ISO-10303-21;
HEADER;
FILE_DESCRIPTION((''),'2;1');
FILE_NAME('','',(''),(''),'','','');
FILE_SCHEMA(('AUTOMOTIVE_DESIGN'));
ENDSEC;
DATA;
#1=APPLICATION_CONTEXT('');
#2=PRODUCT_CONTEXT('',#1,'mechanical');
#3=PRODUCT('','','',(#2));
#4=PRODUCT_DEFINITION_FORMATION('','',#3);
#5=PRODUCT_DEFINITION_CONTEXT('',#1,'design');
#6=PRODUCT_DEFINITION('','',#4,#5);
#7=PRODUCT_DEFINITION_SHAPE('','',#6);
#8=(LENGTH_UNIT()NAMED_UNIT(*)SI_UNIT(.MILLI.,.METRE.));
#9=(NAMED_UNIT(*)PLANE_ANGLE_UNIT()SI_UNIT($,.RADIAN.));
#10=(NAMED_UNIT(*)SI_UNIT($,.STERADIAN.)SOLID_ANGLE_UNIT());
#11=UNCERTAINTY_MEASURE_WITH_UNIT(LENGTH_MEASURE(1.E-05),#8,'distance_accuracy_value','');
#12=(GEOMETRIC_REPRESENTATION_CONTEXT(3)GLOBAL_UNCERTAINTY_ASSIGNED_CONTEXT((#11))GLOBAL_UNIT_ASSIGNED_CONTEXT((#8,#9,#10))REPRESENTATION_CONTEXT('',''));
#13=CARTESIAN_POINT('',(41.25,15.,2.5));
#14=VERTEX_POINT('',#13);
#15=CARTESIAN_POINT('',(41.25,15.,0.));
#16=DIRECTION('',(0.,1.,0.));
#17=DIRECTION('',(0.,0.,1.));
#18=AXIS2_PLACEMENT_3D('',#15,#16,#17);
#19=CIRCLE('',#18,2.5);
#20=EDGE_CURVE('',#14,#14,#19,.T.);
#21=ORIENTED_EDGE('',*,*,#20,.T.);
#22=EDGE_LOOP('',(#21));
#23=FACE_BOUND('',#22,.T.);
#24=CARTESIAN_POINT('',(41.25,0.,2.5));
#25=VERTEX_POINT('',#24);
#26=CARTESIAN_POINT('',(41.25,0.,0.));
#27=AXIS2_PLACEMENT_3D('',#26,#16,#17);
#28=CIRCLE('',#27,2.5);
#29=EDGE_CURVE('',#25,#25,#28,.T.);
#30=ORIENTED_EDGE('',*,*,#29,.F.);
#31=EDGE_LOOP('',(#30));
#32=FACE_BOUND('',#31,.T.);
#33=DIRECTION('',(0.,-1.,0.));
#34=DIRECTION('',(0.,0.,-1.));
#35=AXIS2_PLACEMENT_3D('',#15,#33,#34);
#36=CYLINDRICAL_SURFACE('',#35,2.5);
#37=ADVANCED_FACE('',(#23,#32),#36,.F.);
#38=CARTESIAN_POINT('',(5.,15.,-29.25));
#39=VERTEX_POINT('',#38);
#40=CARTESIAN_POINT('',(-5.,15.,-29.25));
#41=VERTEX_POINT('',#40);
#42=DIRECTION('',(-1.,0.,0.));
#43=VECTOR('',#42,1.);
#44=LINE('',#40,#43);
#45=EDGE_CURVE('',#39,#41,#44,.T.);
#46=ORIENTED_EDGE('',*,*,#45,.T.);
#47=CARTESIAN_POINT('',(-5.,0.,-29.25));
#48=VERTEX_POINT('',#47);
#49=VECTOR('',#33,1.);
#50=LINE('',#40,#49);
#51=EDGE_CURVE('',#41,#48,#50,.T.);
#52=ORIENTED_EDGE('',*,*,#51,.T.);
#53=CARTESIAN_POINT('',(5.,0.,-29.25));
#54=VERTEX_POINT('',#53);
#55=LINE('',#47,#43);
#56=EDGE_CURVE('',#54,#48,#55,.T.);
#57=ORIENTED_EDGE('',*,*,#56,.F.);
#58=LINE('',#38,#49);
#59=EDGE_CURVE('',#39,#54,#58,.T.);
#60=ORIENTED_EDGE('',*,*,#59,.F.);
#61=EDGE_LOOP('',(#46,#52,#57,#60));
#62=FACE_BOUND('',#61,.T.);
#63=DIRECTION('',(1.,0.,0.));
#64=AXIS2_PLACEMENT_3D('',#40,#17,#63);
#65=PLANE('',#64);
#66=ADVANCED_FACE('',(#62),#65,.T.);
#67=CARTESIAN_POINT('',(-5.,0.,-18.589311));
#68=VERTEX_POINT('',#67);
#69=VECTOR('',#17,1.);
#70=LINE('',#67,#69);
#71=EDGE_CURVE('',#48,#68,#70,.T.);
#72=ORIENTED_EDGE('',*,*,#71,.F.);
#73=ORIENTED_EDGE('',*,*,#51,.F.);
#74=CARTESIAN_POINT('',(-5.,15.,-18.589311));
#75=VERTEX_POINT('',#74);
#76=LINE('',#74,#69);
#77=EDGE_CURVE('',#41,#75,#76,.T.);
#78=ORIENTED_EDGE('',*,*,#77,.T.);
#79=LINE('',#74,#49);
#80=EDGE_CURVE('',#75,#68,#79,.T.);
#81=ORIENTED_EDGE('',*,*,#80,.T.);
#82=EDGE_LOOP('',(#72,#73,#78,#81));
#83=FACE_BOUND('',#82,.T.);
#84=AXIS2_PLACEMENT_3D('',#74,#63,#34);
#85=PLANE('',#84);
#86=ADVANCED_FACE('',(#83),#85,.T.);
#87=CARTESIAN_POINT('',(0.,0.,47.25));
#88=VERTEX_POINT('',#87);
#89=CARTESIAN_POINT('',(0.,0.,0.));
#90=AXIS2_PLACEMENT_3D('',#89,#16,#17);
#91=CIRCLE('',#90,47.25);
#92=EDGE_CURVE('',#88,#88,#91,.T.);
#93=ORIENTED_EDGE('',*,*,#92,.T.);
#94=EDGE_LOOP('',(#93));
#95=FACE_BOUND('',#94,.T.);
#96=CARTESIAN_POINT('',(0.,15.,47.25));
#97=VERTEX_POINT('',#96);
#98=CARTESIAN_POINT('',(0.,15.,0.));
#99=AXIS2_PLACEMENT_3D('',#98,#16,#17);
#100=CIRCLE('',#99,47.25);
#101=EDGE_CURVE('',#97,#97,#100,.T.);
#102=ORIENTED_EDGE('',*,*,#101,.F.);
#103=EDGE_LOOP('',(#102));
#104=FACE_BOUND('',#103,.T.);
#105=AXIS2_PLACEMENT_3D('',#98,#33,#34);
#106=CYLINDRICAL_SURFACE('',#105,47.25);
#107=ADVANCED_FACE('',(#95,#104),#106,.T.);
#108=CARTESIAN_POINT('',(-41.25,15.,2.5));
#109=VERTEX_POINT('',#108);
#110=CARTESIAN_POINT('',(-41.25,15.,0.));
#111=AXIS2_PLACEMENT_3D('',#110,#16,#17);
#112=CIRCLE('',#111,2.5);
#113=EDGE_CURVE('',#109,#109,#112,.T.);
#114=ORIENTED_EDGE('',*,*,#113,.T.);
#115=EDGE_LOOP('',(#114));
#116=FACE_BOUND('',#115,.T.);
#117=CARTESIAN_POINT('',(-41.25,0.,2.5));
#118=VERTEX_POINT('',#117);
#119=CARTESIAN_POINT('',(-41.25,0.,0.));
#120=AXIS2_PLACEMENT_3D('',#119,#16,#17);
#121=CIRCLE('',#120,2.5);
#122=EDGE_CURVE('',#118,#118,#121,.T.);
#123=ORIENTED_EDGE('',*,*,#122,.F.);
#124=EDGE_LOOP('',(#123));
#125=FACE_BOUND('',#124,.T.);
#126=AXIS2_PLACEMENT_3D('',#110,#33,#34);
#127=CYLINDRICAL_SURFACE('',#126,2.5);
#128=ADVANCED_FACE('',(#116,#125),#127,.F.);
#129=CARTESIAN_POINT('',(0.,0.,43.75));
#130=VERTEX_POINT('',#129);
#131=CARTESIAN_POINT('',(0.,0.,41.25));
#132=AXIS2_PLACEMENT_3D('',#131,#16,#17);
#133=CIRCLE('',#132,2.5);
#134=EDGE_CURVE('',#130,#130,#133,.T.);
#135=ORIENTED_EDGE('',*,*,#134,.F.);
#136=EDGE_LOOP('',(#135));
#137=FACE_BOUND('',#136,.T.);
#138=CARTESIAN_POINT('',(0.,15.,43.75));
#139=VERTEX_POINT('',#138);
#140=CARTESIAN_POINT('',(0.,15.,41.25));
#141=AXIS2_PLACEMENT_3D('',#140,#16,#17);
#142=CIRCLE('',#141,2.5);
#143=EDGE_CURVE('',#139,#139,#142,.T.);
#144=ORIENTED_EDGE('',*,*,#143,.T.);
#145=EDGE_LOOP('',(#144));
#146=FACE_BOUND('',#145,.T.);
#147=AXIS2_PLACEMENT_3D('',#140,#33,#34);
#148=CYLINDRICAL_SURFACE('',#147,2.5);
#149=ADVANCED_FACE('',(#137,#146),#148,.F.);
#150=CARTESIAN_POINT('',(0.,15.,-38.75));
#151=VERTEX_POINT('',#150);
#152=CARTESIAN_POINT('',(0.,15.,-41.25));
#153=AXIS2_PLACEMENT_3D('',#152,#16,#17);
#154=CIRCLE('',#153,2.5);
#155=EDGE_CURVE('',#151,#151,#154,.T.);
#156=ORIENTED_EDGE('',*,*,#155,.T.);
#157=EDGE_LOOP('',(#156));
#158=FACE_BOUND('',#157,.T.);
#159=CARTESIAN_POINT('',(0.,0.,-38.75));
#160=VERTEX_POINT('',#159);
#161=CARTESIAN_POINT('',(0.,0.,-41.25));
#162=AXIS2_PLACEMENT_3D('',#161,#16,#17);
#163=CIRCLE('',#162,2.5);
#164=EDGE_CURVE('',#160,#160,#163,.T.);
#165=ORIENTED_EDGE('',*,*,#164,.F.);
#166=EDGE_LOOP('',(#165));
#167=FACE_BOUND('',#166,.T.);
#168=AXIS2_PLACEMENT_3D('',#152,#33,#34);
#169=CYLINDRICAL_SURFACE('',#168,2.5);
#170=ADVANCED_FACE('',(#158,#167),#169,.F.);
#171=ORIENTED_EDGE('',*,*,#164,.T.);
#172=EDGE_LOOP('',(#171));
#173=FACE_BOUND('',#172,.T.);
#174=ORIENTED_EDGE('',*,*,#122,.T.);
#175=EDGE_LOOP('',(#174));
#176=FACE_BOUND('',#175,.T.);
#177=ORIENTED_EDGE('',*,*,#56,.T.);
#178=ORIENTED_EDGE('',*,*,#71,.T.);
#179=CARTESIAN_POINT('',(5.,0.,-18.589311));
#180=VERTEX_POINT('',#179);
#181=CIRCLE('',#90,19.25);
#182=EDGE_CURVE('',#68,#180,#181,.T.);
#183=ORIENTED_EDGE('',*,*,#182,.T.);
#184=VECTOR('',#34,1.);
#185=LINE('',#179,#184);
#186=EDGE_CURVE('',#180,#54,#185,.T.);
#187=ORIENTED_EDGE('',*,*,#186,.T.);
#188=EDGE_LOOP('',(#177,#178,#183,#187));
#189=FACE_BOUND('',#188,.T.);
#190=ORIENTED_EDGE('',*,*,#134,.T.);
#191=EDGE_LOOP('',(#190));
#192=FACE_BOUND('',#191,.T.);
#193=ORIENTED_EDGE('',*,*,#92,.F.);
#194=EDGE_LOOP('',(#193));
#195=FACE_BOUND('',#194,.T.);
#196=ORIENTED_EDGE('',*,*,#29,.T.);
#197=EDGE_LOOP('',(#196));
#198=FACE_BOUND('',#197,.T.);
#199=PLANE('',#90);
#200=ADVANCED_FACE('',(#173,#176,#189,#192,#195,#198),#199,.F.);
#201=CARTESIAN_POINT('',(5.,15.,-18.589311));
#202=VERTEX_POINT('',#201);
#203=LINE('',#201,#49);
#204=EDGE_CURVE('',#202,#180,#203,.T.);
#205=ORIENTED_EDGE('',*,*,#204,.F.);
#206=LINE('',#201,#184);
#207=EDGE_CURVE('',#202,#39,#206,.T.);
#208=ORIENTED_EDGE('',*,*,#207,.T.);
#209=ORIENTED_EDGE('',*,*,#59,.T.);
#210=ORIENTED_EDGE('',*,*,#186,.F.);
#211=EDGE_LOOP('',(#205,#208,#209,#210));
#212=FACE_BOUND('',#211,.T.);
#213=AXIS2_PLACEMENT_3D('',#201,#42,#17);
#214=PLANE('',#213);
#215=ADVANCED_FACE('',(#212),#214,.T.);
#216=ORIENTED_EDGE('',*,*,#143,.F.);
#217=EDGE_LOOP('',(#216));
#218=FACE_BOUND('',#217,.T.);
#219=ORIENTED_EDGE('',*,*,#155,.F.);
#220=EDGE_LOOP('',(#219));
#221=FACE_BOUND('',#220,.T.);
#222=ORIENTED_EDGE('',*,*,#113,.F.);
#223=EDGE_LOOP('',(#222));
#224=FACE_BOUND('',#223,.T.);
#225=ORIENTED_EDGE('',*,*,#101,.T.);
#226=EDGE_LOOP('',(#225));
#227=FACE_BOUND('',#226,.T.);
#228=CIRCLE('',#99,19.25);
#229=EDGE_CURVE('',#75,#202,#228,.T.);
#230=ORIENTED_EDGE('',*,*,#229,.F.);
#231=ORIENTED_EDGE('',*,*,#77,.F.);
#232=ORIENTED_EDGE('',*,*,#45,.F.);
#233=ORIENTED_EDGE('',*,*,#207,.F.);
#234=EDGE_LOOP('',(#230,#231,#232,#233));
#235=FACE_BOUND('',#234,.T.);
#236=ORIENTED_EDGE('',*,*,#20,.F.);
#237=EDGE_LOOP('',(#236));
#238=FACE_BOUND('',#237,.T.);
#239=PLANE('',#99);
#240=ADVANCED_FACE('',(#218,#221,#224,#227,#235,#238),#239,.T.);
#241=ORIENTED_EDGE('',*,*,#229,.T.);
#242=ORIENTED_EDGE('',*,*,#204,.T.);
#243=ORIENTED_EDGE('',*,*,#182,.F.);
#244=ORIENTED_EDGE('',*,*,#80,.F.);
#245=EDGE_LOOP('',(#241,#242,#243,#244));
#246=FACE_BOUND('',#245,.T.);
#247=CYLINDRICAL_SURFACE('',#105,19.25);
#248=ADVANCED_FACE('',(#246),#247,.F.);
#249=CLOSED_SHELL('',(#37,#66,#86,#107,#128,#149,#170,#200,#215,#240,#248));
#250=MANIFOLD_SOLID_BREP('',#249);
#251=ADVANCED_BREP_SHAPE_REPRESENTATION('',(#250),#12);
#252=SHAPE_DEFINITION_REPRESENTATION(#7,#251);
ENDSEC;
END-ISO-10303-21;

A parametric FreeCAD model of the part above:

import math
import FreeCAD as App
import Part
import Sketcher
Q = App.Units.Quantity

doc = App.newDocument("Part")
body = doc.addObject("PartDesign::Body", "Body")

sketch1 = body.newObject("Sketcher::SketchObject", "Sketch")
sketch1.AttachmentSupport = (doc.getObject("XZ_Plane"), [""])
sketch1.MapMode = "FlatFace"
sketch1.addGeometry([
    Part.Circle(App.Vector(0, 0, 0), App.Vector(0, 0, 1), 47.2),
    Part.Circle(App.Vector(0, 41.2, 0), App.Vector(0, 0, 1), 2.5),
    Part.Circle(App.Vector(-41.2, 0, 0), App.Vector(0, 0, 1), 2.5),
    Part.ArcOfCircle(Part.Circle(App.Vector(0, 0, 0), App.Vector(0, 0, 1), 19.2), math.radians(-75), math.radians(255)),
    Part.LineSegment(App.Vector(-5, -18.6, 0), App.Vector(-5, -29.2, 0)),
    Part.LineSegment(App.Vector(-5, -29.2, 0), App.Vector(5, -29.2, 0)),
    Part.LineSegment(App.Vector(5, -29.2, 0), App.Vector(5, -18.6, 0)),
    Part.Circle(App.Vector(41.2, 0, 0), App.Vector(0, 0, 1), 2.5),
    Part.Circle(App.Vector(0, -41.2, 0), App.Vector(0, 0, 1), 2.5),
], False)
sketch1.addConstraint([
    Sketcher.Constraint("Coincident", 3, 2, 4, 1),
    Sketcher.Constraint("Coincident", 4, 2, 5, 1),
    Sketcher.Constraint("Coincident", 5, 2, 6, 1),
    Sketcher.Constraint("Coincident", 6, 2, 3, 1),
    Sketcher.Constraint("Vertical", 4),
    Sketcher.Constraint("Horizontal", 5),
    Sketcher.Constraint("Vertical", 6),
    Sketcher.Constraint("Coincident", 0, 3, -1, 1),
    Sketcher.Constraint("Coincident", 3, 3, -1, 1),
    Sketcher.Constraint("Equal", 1, 2),
    Sketcher.Constraint("Equal", 2, 7),
    Sketcher.Constraint("Equal", 7, 8),
    Sketcher.Constraint("Symmetric", 2, 3, 7, 3, -1, 1),
    Sketcher.Constraint("Symmetric", 1, 3, 8, 3, -1, 1),
    Sketcher.Constraint("PointOnObject", 1, 3, -2),
    Sketcher.Constraint("PointOnObject", 2, 3, -1),
    Sketcher.Constraint("Horizontal", 3, 2, 6, 2),
    Sketcher.Constraint("Diameter", 1, Q("5 mm")),
    Sketcher.Constraint("Diameter", 0, Q("94.5 mm")),
    Sketcher.Constraint("DistanceX", 5, 1, 5, 2, Q("10 mm")),
    Sketcher.Constraint("Radius", 3, Q("19.25 mm")),
    Sketcher.Constraint("DistanceY", 8, 3, 4, 2, Q("12 mm")),
    Sketcher.Constraint("DistanceX", 2, 3, 7, 3, Q("82.5 mm")),
    Sketcher.Constraint("DistanceY", 8, 3, 1, 3, Q("82.5 mm")),
])
pad1 = body.newObject("PartDesign::Pad", "Pad")
pad1.Profile = sketch1
pad1.Length = 15
pad1.Reversed = True

doc.recompute()
